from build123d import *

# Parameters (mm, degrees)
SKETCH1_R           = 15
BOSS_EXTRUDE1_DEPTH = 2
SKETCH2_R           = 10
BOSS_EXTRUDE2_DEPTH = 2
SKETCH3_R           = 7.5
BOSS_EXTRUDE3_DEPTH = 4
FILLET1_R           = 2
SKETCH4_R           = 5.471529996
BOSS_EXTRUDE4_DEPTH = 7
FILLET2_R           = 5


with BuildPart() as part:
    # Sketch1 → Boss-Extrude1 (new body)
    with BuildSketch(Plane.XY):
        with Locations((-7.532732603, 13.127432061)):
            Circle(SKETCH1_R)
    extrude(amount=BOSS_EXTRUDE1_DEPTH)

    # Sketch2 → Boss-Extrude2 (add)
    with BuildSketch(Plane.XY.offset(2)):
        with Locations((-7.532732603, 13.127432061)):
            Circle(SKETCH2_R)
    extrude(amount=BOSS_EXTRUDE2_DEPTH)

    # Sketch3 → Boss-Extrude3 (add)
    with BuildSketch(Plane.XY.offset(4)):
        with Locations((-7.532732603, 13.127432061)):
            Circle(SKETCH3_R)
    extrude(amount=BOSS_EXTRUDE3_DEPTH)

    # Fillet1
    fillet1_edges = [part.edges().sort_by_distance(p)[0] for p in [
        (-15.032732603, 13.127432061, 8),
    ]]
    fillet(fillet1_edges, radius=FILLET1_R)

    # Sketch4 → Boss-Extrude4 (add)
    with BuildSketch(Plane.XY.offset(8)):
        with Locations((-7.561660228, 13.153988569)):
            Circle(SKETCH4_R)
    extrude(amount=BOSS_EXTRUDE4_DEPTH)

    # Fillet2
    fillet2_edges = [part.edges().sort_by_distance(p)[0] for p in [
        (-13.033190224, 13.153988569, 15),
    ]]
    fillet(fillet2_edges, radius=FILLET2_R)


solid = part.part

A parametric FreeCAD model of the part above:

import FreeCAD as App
import Part
import Sketcher
Q = App.Units.Quantity


def edges_at(feature, points):
    """Names of the edges that pass closest to the given points."""
    edges = feature.Shape.Edges
    near = lambda p: min(range(len(edges)), key=lambda i: edges[i].distToShape(Part.Vertex(*p))[0])
    return sorted({f"Edge{near(p) + 1}" for p in points})

doc = App.newDocument("Part")
body = doc.addObject("PartDesign::Body", "Body")

# Sketch on XY plane
sketch1 = body.newObject("Sketcher::SketchObject", "Sketch")
sketch1.AttachmentSupport = (doc.getObject("XY_Plane"), [""])
sketch1.MapMode = "FlatFace"
sketch1.addGeometry(Part.Circle(App.Vector(-7.532733, 13.127432, 0), App.Vector(0, 0, 1), 15), False)
sketch1.addConstraint([
    Sketcher.Constraint("Diameter", 0, Q("30 mm")),
    Sketcher.Constraint("DistanceX", 0, 3, -1, 1, Q("7.532733 mm")),
    Sketcher.Constraint("DistanceY", -1, 1, 0, 3, Q("13.127432 mm")),
])
pad1 = body.newObject("PartDesign::Pad", "Pad")
pad1.Profile = sketch1
pad1.Length = 2

# Sketch on XY plane
sketch2 = body.newObject("Sketcher::SketchObject", "Sketch001")
sketch2.AttachmentSupport = (doc.getObject("XY_Plane"), [""])
sketch2.MapMode = "FlatFace"
sketch2.AttachmentOffset = App.Placement(App.Vector(0, 0, 2), App.Rotation())
sketch2.addGeometry(Part.Circle(App.Vector(-7.532733, 13.127432, 0), App.Vector(0, 0, 1), 10), False)
sketch2.addConstraint([
    Sketcher.Constraint("Diameter", 0, Q("20 mm")),
    Sketcher.Constraint("DistanceX", 0, 3, -1, 1, Q("7.532733 mm")),
    Sketcher.Constraint("DistanceY", -1, 1, 0, 3, Q("13.127432 mm")),
])
pad2 = body.newObject("PartDesign::Pad", "Pad001")
pad2.Profile = sketch2
pad2.Length = 2

# Sketch on XY plane
sketch3 = body.newObject("Sketcher::SketchObject", "Sketch002")
sketch3.AttachmentSupport = (doc.getObject("XY_Plane"), [""])
sketch3.MapMode = "FlatFace"
sketch3.AttachmentOffset = App.Placement(App.Vector(0, 0, 4), App.Rotation())
sketch3.addGeometry(Part.Circle(App.Vector(-7.532733, 13.127432, 0), App.Vector(0, 0, 1), 7.5), False)
sketch3.addConstraint([
    Sketcher.Constraint("Diameter", 0, Q("15 mm")),
    Sketcher.Constraint("DistanceX", 0, 3, -1, 1, Q("7.532733 mm")),
    Sketcher.Constraint("DistanceY", -1, 1, 0, 3, Q("13.127432 mm")),
])
pad3 = body.newObject("PartDesign::Pad", "Pad002")
pad3.Profile = sketch3
pad3.Length = 4
doc.recompute()

fillet = body.newObject("PartDesign::Fillet", "Fillet")
fillet.Base = (pad3, edges_at(pad3, [(-15.033, 13.127, 8)]))
fillet.Radius = 2

# Sketch on XY plane
sketch4 = body.newObject("Sketcher::SketchObject", "Sketch003")
sketch4.AttachmentSupport = (doc.getObject("XY_Plane"), [""])
sketch4.MapMode = "FlatFace"
sketch4.AttachmentOffset = App.Placement(App.Vector(0, 0, 8), App.Rotation())
sketch4.addGeometry(Part.Circle(App.Vector(-7.56166, 13.153989, 0), App.Vector(0, 0, 1), 5.47153), False)
sketch4.addConstraint([
    Sketcher.Constraint("Diameter", 0, Q("10.94306 mm")),
    Sketcher.Constraint("DistanceX", 0, 3, -1, 1, Q("7.56166 mm")),
    Sketcher.Constraint("DistanceY", -1, 1, 0, 3, Q("13.153989 mm")),
])
pad4 = body.newObject("PartDesign::Pad", "Pad003")
pad4.Profile = sketch4
pad4.Length = 7
doc.recompute()

fillet2 = body.newObject("PartDesign::Fillet", "Fillet001")
fillet2.Base = (pad4, edges_at(pad4, [(-13.033, 13.154, 15)]))
fillet2.Radius = 5

doc.recompute()
